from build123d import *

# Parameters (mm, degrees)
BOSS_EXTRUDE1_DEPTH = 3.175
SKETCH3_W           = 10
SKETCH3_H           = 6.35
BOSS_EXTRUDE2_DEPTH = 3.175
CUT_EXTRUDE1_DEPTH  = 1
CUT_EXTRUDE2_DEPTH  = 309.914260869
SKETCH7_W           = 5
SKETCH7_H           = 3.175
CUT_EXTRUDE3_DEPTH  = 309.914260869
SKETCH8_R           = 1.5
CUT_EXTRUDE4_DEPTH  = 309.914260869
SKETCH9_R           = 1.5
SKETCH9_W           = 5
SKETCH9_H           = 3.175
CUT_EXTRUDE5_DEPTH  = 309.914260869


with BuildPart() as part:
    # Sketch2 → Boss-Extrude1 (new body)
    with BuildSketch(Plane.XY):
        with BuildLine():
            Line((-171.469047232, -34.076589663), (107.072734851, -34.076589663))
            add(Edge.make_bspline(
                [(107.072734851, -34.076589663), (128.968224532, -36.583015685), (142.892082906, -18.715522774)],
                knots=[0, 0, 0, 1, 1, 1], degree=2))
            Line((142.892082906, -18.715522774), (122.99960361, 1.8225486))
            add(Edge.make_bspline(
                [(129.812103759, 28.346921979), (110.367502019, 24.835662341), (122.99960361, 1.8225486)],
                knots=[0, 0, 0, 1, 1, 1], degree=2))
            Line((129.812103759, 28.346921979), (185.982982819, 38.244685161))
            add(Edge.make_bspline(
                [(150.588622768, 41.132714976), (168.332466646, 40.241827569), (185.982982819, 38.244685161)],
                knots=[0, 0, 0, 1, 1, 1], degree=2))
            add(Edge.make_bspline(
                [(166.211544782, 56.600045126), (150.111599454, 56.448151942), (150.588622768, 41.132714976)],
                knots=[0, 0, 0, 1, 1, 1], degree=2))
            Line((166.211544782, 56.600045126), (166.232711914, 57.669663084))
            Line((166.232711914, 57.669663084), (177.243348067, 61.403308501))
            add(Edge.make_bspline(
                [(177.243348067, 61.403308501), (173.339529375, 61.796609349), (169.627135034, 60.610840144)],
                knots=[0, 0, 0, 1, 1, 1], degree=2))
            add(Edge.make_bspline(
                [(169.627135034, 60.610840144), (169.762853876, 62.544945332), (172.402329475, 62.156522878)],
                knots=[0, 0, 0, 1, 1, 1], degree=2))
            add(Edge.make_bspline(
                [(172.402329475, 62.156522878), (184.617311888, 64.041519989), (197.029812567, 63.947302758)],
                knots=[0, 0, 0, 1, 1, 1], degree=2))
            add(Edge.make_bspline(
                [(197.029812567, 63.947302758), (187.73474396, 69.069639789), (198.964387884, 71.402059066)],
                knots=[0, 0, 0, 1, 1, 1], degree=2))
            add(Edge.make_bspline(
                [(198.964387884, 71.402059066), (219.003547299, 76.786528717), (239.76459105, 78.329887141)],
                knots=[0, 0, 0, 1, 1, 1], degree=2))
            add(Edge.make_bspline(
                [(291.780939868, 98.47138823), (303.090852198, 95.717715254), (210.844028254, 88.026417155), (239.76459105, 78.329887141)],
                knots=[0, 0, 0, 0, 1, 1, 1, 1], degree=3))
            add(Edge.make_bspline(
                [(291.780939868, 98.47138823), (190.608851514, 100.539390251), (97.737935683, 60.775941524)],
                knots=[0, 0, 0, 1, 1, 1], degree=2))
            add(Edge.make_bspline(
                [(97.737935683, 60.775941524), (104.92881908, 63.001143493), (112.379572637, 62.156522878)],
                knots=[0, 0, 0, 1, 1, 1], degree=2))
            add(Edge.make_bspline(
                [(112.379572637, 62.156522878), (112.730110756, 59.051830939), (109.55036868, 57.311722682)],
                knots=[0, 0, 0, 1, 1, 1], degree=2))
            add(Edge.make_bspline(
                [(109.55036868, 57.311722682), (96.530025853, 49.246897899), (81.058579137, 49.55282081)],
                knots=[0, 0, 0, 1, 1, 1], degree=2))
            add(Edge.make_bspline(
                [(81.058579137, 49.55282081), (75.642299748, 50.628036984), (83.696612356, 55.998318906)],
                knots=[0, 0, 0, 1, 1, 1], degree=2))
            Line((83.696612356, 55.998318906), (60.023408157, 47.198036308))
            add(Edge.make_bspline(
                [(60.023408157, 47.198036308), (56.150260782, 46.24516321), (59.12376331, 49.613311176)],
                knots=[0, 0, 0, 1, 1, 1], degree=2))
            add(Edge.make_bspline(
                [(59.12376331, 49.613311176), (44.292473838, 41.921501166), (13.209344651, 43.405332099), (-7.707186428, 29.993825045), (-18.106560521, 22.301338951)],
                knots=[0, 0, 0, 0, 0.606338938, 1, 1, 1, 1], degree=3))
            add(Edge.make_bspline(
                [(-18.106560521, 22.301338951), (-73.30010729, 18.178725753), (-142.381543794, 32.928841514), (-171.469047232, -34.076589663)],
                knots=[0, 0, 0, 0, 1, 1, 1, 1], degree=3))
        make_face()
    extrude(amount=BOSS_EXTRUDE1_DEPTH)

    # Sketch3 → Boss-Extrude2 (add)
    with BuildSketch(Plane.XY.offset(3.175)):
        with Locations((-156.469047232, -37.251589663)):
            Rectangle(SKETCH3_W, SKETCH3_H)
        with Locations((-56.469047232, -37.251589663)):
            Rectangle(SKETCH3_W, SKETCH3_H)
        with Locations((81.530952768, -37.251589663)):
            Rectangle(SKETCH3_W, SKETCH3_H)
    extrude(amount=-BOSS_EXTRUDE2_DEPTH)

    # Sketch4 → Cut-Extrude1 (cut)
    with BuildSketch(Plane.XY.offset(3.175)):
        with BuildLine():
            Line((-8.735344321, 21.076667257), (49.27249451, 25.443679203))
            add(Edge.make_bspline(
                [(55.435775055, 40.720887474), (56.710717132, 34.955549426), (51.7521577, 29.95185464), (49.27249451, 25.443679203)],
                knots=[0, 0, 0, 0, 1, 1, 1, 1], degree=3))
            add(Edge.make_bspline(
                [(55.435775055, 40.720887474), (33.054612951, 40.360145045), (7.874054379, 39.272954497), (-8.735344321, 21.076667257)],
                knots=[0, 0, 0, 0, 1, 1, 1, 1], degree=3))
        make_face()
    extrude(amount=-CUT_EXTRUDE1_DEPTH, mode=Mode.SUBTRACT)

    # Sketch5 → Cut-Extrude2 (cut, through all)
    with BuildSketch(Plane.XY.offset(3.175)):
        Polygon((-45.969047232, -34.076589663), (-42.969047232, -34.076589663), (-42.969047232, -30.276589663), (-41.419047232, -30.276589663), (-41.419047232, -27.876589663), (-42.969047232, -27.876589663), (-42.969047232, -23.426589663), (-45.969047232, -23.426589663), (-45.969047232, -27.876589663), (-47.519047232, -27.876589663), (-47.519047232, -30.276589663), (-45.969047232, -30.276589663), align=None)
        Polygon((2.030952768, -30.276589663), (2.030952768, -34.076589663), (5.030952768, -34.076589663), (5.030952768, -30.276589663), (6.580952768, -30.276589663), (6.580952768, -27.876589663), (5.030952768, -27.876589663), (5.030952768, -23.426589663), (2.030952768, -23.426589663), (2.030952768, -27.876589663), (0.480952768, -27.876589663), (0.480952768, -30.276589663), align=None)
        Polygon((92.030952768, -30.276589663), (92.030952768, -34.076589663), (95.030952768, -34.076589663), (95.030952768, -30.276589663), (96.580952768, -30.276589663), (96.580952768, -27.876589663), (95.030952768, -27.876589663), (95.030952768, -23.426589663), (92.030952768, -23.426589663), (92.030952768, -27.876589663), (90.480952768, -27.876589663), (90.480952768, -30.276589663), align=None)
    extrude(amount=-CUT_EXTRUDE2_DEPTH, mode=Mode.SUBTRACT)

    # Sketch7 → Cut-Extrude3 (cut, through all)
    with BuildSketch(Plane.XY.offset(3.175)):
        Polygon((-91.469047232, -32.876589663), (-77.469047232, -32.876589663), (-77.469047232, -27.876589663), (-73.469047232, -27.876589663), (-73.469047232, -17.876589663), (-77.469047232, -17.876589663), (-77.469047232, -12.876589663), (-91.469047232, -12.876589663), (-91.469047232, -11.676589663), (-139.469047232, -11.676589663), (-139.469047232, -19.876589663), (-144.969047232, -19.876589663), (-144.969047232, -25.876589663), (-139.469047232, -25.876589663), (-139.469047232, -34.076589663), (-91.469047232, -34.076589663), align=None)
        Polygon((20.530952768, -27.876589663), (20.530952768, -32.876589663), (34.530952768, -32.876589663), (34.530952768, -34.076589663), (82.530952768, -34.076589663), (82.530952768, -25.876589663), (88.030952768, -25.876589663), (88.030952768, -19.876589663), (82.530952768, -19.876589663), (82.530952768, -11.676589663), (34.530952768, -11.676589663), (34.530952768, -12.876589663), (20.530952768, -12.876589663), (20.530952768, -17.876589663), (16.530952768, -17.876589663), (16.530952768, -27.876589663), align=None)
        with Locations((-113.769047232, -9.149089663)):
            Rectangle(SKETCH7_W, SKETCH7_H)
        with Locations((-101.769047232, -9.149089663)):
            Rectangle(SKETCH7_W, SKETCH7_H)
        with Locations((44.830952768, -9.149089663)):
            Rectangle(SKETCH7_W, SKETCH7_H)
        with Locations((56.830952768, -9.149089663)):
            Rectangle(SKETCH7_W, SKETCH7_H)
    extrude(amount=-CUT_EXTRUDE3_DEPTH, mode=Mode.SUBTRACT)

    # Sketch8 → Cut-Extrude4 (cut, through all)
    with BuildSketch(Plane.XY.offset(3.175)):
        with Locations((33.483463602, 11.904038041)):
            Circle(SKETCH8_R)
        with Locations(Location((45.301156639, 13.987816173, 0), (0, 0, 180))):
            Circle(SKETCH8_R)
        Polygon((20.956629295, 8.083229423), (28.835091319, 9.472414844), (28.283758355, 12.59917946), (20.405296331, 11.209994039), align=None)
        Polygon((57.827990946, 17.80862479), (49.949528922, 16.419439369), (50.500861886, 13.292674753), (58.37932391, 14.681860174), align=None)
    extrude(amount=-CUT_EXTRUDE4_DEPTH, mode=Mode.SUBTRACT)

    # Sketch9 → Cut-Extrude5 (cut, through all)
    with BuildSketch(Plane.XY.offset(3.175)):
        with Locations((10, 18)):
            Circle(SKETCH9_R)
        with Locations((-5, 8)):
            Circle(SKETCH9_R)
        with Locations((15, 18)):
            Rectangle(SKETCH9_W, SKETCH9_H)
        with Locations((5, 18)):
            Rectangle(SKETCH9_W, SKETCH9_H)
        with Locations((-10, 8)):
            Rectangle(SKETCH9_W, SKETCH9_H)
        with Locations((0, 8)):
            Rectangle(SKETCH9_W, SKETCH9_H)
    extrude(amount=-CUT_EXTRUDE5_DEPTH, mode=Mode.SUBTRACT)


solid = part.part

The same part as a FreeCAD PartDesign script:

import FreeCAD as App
import Part
import Sketcher

V = App.Vector
Q = App.Units.Quantity


def add_polygon(sketch, points):
    """Adds a closed chain of lines whose ends are joined by coincident constraints."""
    first, n = sketch.GeometryCount, len(points)
    for a, b in zip(points, points[1:] + points[:1]):
        sketch.addGeometry(Part.LineSegment(App.Vector(*a, 0), App.Vector(*b, 0)), False)
    for i in range(n):
        sketch.addConstraint(Sketcher.Constraint("Coincident", first + i, 2, first + (i + 1) % n, 1))

doc = App.newDocument("Part")
params = doc.addObject("Spreadsheet::Sheet", "Params")
for row, (alias, value) in enumerate([
    ("pad1_length", "3.175 mm"),
    ("sketch2_width", "10 mm"),
    ("sketch2_height", "6.35 mm"),
    ("pad2_length", "3.175 mm"),
    ("pocket1_length", "1 mm"),
    ("sketch4_width", "3 mm"),
    ("sketch4_height", "3.8 mm"),
    ("sketch4_height2", "2.4 mm"),
    ("sketch4_width2", "1.55 mm"),
    ("sketch4_height3", "4.45 mm"),
    ("sketch5_width", "14 mm"),
    ("sketch5_width2", "4 mm"),
    ("sketch5_width3", "48 mm"),
    ("sketch5_width4", "5 mm"),
    ("sketch5_height", "10 mm"),
    ("sketch6_diameter", "3 mm"),
    ("sketch6_length", "8 mm"),
    ("sketch7_diameter", "3 mm"),
    ("sketch7_width", "5 mm"),
], start=1):
    params.set(f"A{row}", alias)
    params.set(f"B{row}", "=" + value)
    params.setAlias(f"B{row}", alias)

body = doc.addObject("PartDesign::Body", "Body")

sketch1 = body.newObject("Sketcher::SketchObject", "Sketch")
sketch1.AttachmentSupport = (doc.getObject("XY_Plane"), [""])
sketch1.MapMode = "FlatFace"
sketch1.addGeometry([
    Part.LineSegment(V(-171.469047, -34.07659, 0), V(107.072735, -34.07659, 0)),
    Part.BSplineCurve([V(107.072735, -34.07659, 0), V(128.968225, -36.583016, 0), V(142.892083, -18.715523, 0)], [3, 3], [0, 1], False, 2, [1, 1, 1], False),
    Part.LineSegment(V(142.892083, -18.715523, 0), V(122.999604, 1.822549, 0)),
    Part.BSplineCurve([V(129.812104, 28.346922, 0), V(110.367502, 24.835662, 0), V(122.999604, 1.822549, 0)], [3, 3], [0, 1], False, 2, [1, 1, 1], False),
    Part.LineSegment(V(129.812104, 28.346922, 0), V(185.982983, 38.244685, 0)),
    Part.BSplineCurve([V(150.588623, 41.132715, 0), V(168.332467, 40.241828, 0), V(185.982983, 38.244685, 0)], [3, 3], [0, 1], False, 2, [1, 1, 1], False),
    Part.BSplineCurve([V(166.211545, 56.600045, 0), V(150.111599, 56.448152, 0), V(150.588623, 41.132715, 0)], [3, 3], [0, 1], False, 2, [1, 1, 1], False),
    Part.LineSegment(V(166.211545, 56.600045, 0), V(166.232712, 57.669663, 0)),
    Part.LineSegment(V(166.232712, 57.669663, 0), V(177.243348, 61.403309, 0)),
    Part.BSplineCurve([V(177.243348, 61.403309, 0), V(173.339529, 61.796609, 0), V(169.627135, 60.61084, 0)], [3, 3], [0, 1], False, 2, [1, 1, 1], False),
    Part.BSplineCurve([V(169.627135, 60.61084, 0), V(169.762854, 62.544945, 0), V(172.402329, 62.156523, 0)], [3, 3], [0, 1], False, 2, [1, 1, 1], False),
    Part.BSplineCurve([V(172.402329, 62.156523, 0), V(184.617312, 64.04152, 0), V(197.029813, 63.947303, 0)], [3, 3], [0, 1], False, 2, [1, 1, 1], False),
    Part.BSplineCurve([V(197.029813, 63.947303, 0), V(187.734744, 69.06964, 0), V(198.964388, 71.402059, 0)], [3, 3], [0, 1], False, 2, [1, 1, 1], False),
    Part.BSplineCurve([V(198.964388, 71.402059, 0), V(219.003547, 76.786529, 0), V(239.764591, 78.329887, 0)], [3, 3], [0, 1], False, 2, [1, 1, 1], False),
    Part.BSplineCurve([V(291.78094, 98.471388, 0), V(303.090852, 95.717715, 0), V(210.844028, 88.026417, 0), V(239.764591, 78.329887, 0)], [4, 4], [0, 1], False, 3, [1, 1, 1, 1], False),
    Part.BSplineCurve([V(291.78094, 98.471388, 0), V(190.608852, 100.53939, 0), V(97.737936, 60.775942, 0)], [3, 3], [0, 1], False, 2, [1, 1, 1], False),
    Part.BSplineCurve([V(97.737936, 60.775942, 0), V(104.928819, 63.001143, 0), V(112.379573, 62.156523, 0)], [3, 3], [0, 1], False, 2, [1, 1, 1], False),
    Part.BSplineCurve([V(112.379573, 62.156523, 0), V(112.730111, 59.051831, 0), V(109.550369, 57.311723, 0)], [3, 3], [0, 1], False, 2, [1, 1, 1], False),
    Part.BSplineCurve([V(109.550369, 57.311723, 0), V(96.530026, 49.246898, 0), V(81.058579, 49.552821, 0)], [3, 3], [0, 1], False, 2, [1, 1, 1], False),
    Part.BSplineCurve([V(81.058579, 49.552821, 0), V(75.6423, 50.628037, 0), V(83.696612, 55.998319, 0)], [3, 3], [0, 1], False, 2, [1, 1, 1], False),
    Part.LineSegment(V(83.696612, 55.998319, 0), V(60.023408, 47.198036, 0)),
    Part.BSplineCurve([V(60.023408, 47.198036, 0), V(56.150261, 46.245163, 0), V(59.123763, 49.613311, 0)], [3, 3], [0, 1], False, 2, [1, 1, 1], False),
    Part.BSplineCurve([V(59.123763, 49.613311, 0), V(44.292474, 41.921501, 0), V(13.209345, 43.405332, 0), V(-7.707186, 29.993825, 0), V(-18.106561, 22.301339, 0)], [4, 1, 4], [0, 0.606338938, 1], False, 3, [1, 1, 1, 1, 1], False),
    Part.BSplineCurve([V(-18.106561, 22.301339, 0), V(-73.300107, 18.178726, 0), V(-142.381544, 32.928842, 0), V(-171.469047, -34.07659, 0)], [4, 4], [0, 1], False, 3, [1, 1, 1, 1], False),
], False)
sketch1.addConstraint([
    Sketcher.Constraint("Block", 1),
    Sketcher.Constraint("Block", 3),
    Sketcher.Constraint("Block", 5),
    Sketcher.Constraint("Block", 6),
    Sketcher.Constraint("Block", 9),
    Sketcher.Constraint("Block", 10),
    Sketcher.Constraint("Block", 11),
    Sketcher.Constraint("Block", 12),
    Sketcher.Constraint("Block", 13),
    Sketcher.Constraint("Block", 14),
    Sketcher.Constraint("Block", 15),
    Sketcher.Constraint("Block", 16),
    Sketcher.Constraint("Block", 17),
    Sketcher.Constraint("Block", 18),
    Sketcher.Constraint("Block", 19),
    Sketcher.Constraint("Block", 21),
    Sketcher.Constraint("Block", 22),
    Sketcher.Constraint("Block", 23),
    Sketcher.Constraint("Coincident", 0, 2, 1, 1),
    Sketcher.Constraint("Coincident", 1, 2, 2, 1),
    Sketcher.Constraint("Coincident", 2, 2, 3, 2),
    Sketcher.Constraint("Coincident", 3, 1, 4, 1),
    Sketcher.Constraint("Coincident", 4, 2, 5, 2),
    Sketcher.Constraint("Coincident", 6, 1, 7, 1),
    Sketcher.Constraint("Coincident", 7, 2, 8, 1),
    Sketcher.Constraint("Coincident", 8, 2, 9, 1),
    Sketcher.Constraint("Coincident", 19, 2, 20, 1),
    Sketcher.Constraint("Coincident", 20, 2, 21, 1),
    Sketcher.Constraint("Coincident", 23, 2, 0, 1),
    Sketcher.Constraint("DistanceX", -1, 1, 7, 2, Q("166.232712 mm")),
    Sketcher.Constraint("Distance", 7, Q("1.069827 mm")),
])
pad1 = body.newObject("PartDesign::Pad", "Pad")
pad1.Profile = sketch1
pad1.setExpression("Length", "Params.pad1_length")

sketch2 = body.newObject("Sketcher::SketchObject", "Sketch001")
sketch2.AttachmentSupport = (doc.getObject("XY_Plane"), [""])
sketch2.MapMode = "FlatFace"
sketch2.AttachmentOffset = App.Placement(V(0, 0, 3.175), App.Rotation())
add_polygon(sketch2, [(-161, -34), (-161, -40), (-151, -40), (-151, -34)])
add_polygon(sketch2, [(-61, -34), (-61, -40), (-51, -40), (-51, -34)])
add_polygon(sketch2, [(77, -34), (77, -40), (87, -40), (87, -34)])
sketch2.addConstraint([
    Sketcher.Constraint("Vertical", 0),
    Sketcher.Constraint("Horizontal", 1),
    Sketcher.Constraint("Vertical", 2),
    Sketcher.Constraint("Horizontal", 3),
    Sketcher.Constraint("Vertical", 4),
    Sketcher.Constraint("Horizontal", 5),
    Sketcher.Constraint("Vertical", 6),
    Sketcher.Constraint("Horizontal", 7),
    Sketcher.Constraint("Vertical", 8),
    Sketcher.Constraint("Horizontal", 9),
    Sketcher.Constraint("Vertical", 10),
    Sketcher.Constraint("Horizontal", 11),
    Sketcher.Constraint("Horizontal", 1, 2, 4, 2),
    Sketcher.Constraint("Horizontal", 3, 2, 6, 2),
    Sketcher.Constraint("Horizontal", 5, 2, 8, 2),
    Sketcher.Constraint("Horizontal", 7, 2, 10, 2),
    Sketcher.Constraint("Equal", 3, 5),
    Sketcher.Constraint("Equal", 7, 9),
    Sketcher.Constraint("DistanceX", 1, 1, 1, 2, Q("10 mm")),
    Sketcher.Constraint("DistanceX", 1, 2, 4, 2, Q("90 mm")),
    Sketcher.Constraint("DistanceX", 5, 2, 8, 2, Q("128 mm")),
    Sketcher.Constraint("DistanceY", 0, 2, 0, 1, Q("6.35 mm")),
    Sketcher.Constraint("DistanceY", 0, 2, -1, 1, Q("40.42659 mm")),
    Sketcher.Constraint("DistanceX", 0, 2, -1, 1, Q("161.469047 mm")),
])
sketch2.setExpression("Constraints[30]", "Params.sketch2_width")
sketch2.setExpression("Constraints[33]", "Params.sketch2_height")
pad2 = body.newObject("PartDesign::Pad", "Pad001")
pad2.Profile = sketch2
pad2.setExpression("Length", "Params.pad2_length")
pad2.Reversed = True

sketch3 = body.newObject("Sketcher::SketchObject", "Sketch002")
sketch3.AttachmentSupport = (doc.getObject("XY_Plane"), [""])
sketch3.MapMode = "FlatFace"
sketch3.AttachmentOffset = App.Placement(V(0, 0, 3.175), App.Rotation())
sketch3.addGeometry([
    Part.LineSegment(V(-8.735344, 21.076667, 0), V(49.272495, 25.443679, 0)),
    Part.BSplineCurve([V(55.435775, 40.720887, 0), V(56.710717, 34.955549, 0), V(51.752158, 29.951855, 0), V(49.272495, 25.443679, 0)], [4, 4], [0, 1], False, 3, [1, 1, 1, 1], False),
    Part.BSplineCurve([V(55.435775, 40.720887, 0), V(33.054613, 40.360145, 0), V(7.874054, 39.272954, 0), V(-8.735344, 21.076667, 0)], [4, 4], [0, 1], False, 3, [1, 1, 1, 1], False),
], False)
sketch3.addConstraint([
    Sketcher.Constraint("Block", 1),
    Sketcher.Constraint("Block", 2),
    Sketcher.Constraint("Coincident", 0, 2, 1, 2),
    Sketcher.Constraint("Coincident", 2, 2, 0, 1),
])
pocket1 = body.newObject("PartDesign::Pocket", "Pocket")
pocket1.Profile = sketch3
pocket1.setExpression("Length", "Params.pocket1_length")

sketch4 = body.newObject("Sketcher::SketchObject", "Sketch003")
sketch4.AttachmentSupport = (doc.getObject("XY_Plane"), [""])
sketch4.MapMode = "FlatFace"
sketch4.AttachmentOffset = App.Placement(V(0, 0, 3.175), App.Rotation())
add_polygon(sketch4, [(-46, -34.1), (-43, -34.1), (-43, -30.3), (-41.4, -30.3), (-41.4, -27.9), (-43, -27.9), (-43, -23.4), (-46, -23.4), (-46, -27.9), (-47.5, -27.9), (-47.5, -30.3), (-46, -30.3)])
add_polygon(sketch4, [(2, -30.3), (2, -34.1), (5, -34.1), (5, -30.3), (6.6, -30.3), (6.6, -27.9), (5, -27.9), (5, -23.4), (2, -23.4), (2, -27.9), (0.5, -27.9), (0.5, -30.3)])
add_polygon(sketch4, [(92, -30.3), (92, -34.1), (95, -34.1), (95, -30.3), (96.6, -30.3), (96.6, -27.9), (95, -27.9), (95, -23.4), (92, -23.4), (92, -27.9), (90.5, -27.9), (90.5, -30.3)])
sketch4.addConstraint([
    Sketcher.Constraint("Horizontal", 0),
    Sketcher.Constraint("Vertical", 1),
    Sketcher.Constraint("Horizontal", 2),
    Sketcher.Constraint("Vertical", 3),
    Sketcher.Constraint("Horizontal", 4),
    Sketcher.Constraint("Vertical", 5),
    Sketcher.Constraint("Horizontal", 6),
    Sketcher.Constraint("Vertical", 7),
    Sketcher.Constraint("Horizontal", 8),
    Sketcher.Constraint("Vertical", 9),
    Sketcher.Constraint("Horizontal", 10),
    Sketcher.Constraint("Vertical", 11),
    Sketcher.Constraint("Vertical", 12),
    Sketcher.Constraint("Horizontal", 13),
    Sketcher.Constraint("Vertical", 14),
    Sketcher.Constraint("Horizontal", 15),
    Sketcher.Constraint("Vertical", 16),
    Sketcher.Constraint("Horizontal", 17),
    Sketcher.Constraint("Vertical", 18),
    Sketcher.Constraint("Horizontal", 19),
    Sketcher.Constraint("Vertical", 20),
    Sketcher.Constraint("Horizontal", 21),
    Sketcher.Constraint("Vertical", 22),
    Sketcher.Constraint("Horizontal", 23),
    Sketcher.Constraint("Vertical", 24),
    Sketcher.Constraint("Horizontal", 25),
    Sketcher.Constraint("Vertical", 26),
    Sketcher.Constraint("Horizontal", 27),
    Sketcher.Constraint("Vertical", 28),
    Sketcher.Constraint("Horizontal", 29),
    Sketcher.Constraint("Vertical", 30),
    Sketcher.Constraint("Horizontal", 31),
    Sketcher.Constraint("Vertical", 32),
    Sketcher.Constraint("Horizontal", 33),
    Sketcher.Constraint("Vertical", 34),
    Sketcher.Constraint("Horizontal", 35),
    Sketcher.Constraint("Horizontal", 4, 2, 7, 2),
    Sketcher.Constraint("Horizontal", 2, 2, 9, 2),
    Sketcher.Constraint("Horizontal", 11, 2, 12, 2),
    Sketcher.Constraint("Horizontal", 10, 2, 14, 2),
    Sketcher.Constraint("Horizontal", 8, 2, 16, 2),
    Sketcher.Constraint("Horizontal", 6, 2, 18, 2),
    Sketcher.Constraint("Horizontal", 17, 2, 20, 2),
    Sketcher.Constraint("Horizontal", 15, 2, 22, 2),
    Sketcher.Constraint("Horizontal", 13, 2, 24, 2),
    Sketcher.Constraint("Horizontal", 23, 2, 26, 2),
    Sketcher.Constraint("Horizontal", 21, 2, 28, 2),
    Sketcher.Constraint("Horizontal", 19, 2, 30, 2),
    Sketcher.Constraint("Horizontal", 29, 2, 32, 2),
    Sketcher.Constraint("Horizontal", 27, 2, 34, 2),
    Sketcher.Constraint("Vertical", 1, 2, 4, 2),
    Sketcher.Constraint("Vertical", 7, 2, 10, 2),
    Sketcher.Constraint("Vertical", 14, 2, 17, 2),
    Sketcher.Constraint("Vertical", 12, 2, 19, 2),
    Sketcher.Constraint("Vertical", 26, 2, 29, 2),
    Sketcher.Constraint("Vertical", 24, 2, 31, 2),
    Sketcher.Constraint("Equal", 4, 8),
    Sketcher.Constraint("Equal", 6, 13),
    Sketcher.Constraint("Equal", 10, 15),
    Sketcher.Constraint("Equal", 17, 21),
    Sketcher.Constraint("Equal", 19, 25),
    Sketcher.Constraint("Equal", 23, 27),
    Sketcher.Constraint("Equal", 29, 33),
    Sketcher.Constraint("DistanceX", 0, 1, 0, 2, Q("3 mm")),
    Sketcher.Constraint("DistanceY", 1, 1, 1, 2, Q("3.8 mm")),
    Sketcher.Constraint("DistanceY", 3, 1, 3, 2, Q("2.4 mm")),
    Sketcher.Constraint("DistanceX", 0, 2, 12, 2, Q("45 mm")),
    Sketcher.Constraint("DistanceX", 13, 2, 24, 2, Q("87 mm")),
    Sketcher.Constraint("DistanceX", 2, 1, 2, 2, Q("1.55 mm")),
    Sketcher.Constraint("DistanceY", 5, 1, 5, 2, Q("4.45 mm")),
    Sketcher.Constraint("DistanceY", 0, 2, -1, 1, Q("34.07659 mm")),
    Sketcher.Constraint("DistanceX", 0, 2, -1, 1, Q("42.969047 mm")),
])
sketch4.setExpression("Constraints[99]", "Params.sketch4_width")
sketch4.setExpression("Constraints[100]", "Params.sketch4_height")
sketch4.setExpression("Constraints[101]", "Params.sketch4_height2")
sketch4.setExpression("Constraints[104]", "Params.sketch4_width2")
sketch4.setExpression("Constraints[105]", "Params.sketch4_height3")
pocket2 = body.newObject("PartDesign::Pocket", "Pocket001")
pocket2.Profile = sketch4
pocket2.Type = "ThroughAll"

sketch5 = body.newObject("Sketcher::SketchObject", "Sketch004")
sketch5.AttachmentSupport = (doc.getObject("XY_Plane"), [""])
sketch5.MapMode = "FlatFace"
sketch5.AttachmentOffset = App.Placement(V(0, 0, 3.175), App.Rotation())
add_polygon(sketch5, [(-91.5, -32.9), (-77.5, -32.9), (-77.5, -27.9), (-73.5, -27.9), (-73.5, -17.9), (-77.5, -17.9), (-77.5, -12.9), (-91.5, -12.9), (-91.5, -11.7), (-139.5, -11.7), (-139.5, -19.9), (-145, -19.9), (-145, -25.9), (-139.5, -25.9), (-139.5, -34.1), (-91.5, -34.1)])
add_polygon(sketch5, [(20.5, -27.9), (20.5, -32.9), (34.5, -32.9), (34.5, -34.1), (82.5, -34.1), (82.5, -25.9), (88, -25.9), (88, -19.9), (82.5, -19.9), (82.5, -11.7), (34.5, -11.7), (34.5, -12.9), (20.5, -12.9), (20.5, -17.9), (16.5, -17.9), (16.5, -27.9)])
add_polygon(sketch5, [(-116.3, -7.6), (-116.3, -10.7), (-111.3, -10.7), (-111.3, -7.6)])
add_polygon(sketch5, [(-104.3, -7.6), (-104.3, -10.7), (-99.3, -10.7), (-99.3, -7.6)])
add_polygon(sketch5, [(42.3, -7.6), (42.3, -10.7), (47.3, -10.7), (47.3, -7.6)])
add_polygon(sketch5, [(54.3, -7.6), (54.3, -10.7), (59.3, -10.7), (59.3, -7.6)])
sketch5.addConstraint([
    Sketcher.Constraint("Horizontal", 0),
    Sketcher.Constraint("Vertical", 1),
    Sketcher.Constraint("Horizontal", 2),
    Sketcher.Constraint("Vertical", 3),
    Sketcher.Constraint("Horizontal", 4),
    Sketcher.Constraint("Vertical", 5),
    Sketcher.Constraint("Horizontal", 6),
    Sketcher.Constraint("Vertical", 7),
    Sketcher.Constraint("Horizontal", 8),
    Sketcher.Constraint("Vertical", 9),
    Sketcher.Constraint("Horizontal", 10),
    Sketcher.Constraint("Vertical", 11),
    Sketcher.Constraint("Horizontal", 12),
    Sketcher.Constraint("Vertical", 13),
    Sketcher.Constraint("Horizontal", 14),
    Sketcher.Constraint("Vertical", 15),
    Sketcher.Constraint("Vertical", 16),
    Sketcher.Constraint("Horizontal", 17),
    Sketcher.Constraint("Vertical", 18),
    Sketcher.Constraint("Horizontal", 19),
    Sketcher.Constraint("Vertical", 20),
    Sketcher.Constraint("Horizontal", 21),
    Sketcher.Constraint("Vertical", 22),
    Sketcher.Constraint("Horizontal", 23),
    Sketcher.Constraint("Vertical", 24),
    Sketcher.Constraint("Horizontal", 25),
    Sketcher.Constraint("Vertical", 26),
    Sketcher.Constraint("Horizontal", 27),
    Sketcher.Constraint("Vertical", 28),
    Sketcher.Constraint("Horizontal", 29),
    Sketcher.Constraint("Vertical", 30),
    Sketcher.Constraint("Horizontal", 31),
    Sketcher.Constraint("Vertical", 32),
    Sketcher.Constraint("Horizontal", 33),
    Sketcher.Constraint("Vertical", 34),
    Sketcher.Constraint("Horizontal", 35),
    Sketcher.Constraint("Vertical", 36),
    Sketcher.Constraint("Horizontal", 37),
    Sketcher.Constraint("Vertical", 38),
    Sketcher.Constraint("Horizontal", 39),
    Sketcher.Constraint("Vertical", 40),
    Sketcher.Constraint("Horizontal", 41),
    Sketcher.Constraint("Vertical", 42),
    Sketcher.Constraint("Horizontal", 43),
    Sketcher.Constraint("Vertical", 44),
    Sketcher.Constraint("Horizontal", 45),
    Sketcher.Constraint("Vertical", 46),
    Sketcher.Constraint("Horizontal", 47),
    Sketcher.Constraint("Horizontal", 15, 2, 16, 2),
    Sketcher.Constraint("Horizontal", 14, 2, 18, 2),
    Sketcher.Constraint("Horizontal", 12, 2, 20, 2),
    Sketcher.Constraint("Horizontal", 10, 2, 22, 2),
    Sketcher.Constraint("Horizontal", 8, 2, 24, 2),
    Sketcher.Constraint("Horizontal", 6, 2, 26, 2),
    Sketcher.Constraint("Horizontal", 4, 2, 28, 2),
    Sketcher.Constraint("Horizontal", 2, 2, 30, 2),
    Sketcher.Constraint("Horizontal", 33, 2, 36, 2),
    Sketcher.Constraint("Horizontal", 35, 2, 38, 2),
    Sketcher.Constraint("Horizontal", 37, 2, 40, 2),
    Sketcher.Constraint("Horizontal", 39, 2, 42, 2),
    Sketcher.Constraint("Horizontal", 41, 2, 44, 2),
    Sketcher.Constraint("Horizontal", 43, 2, 46, 2),
    Sketcher.Constraint("Vertical", 1, 2, 4, 2),
    Sketcher.Constraint("Vertical", 9, 2, 12, 2),
    Sketcher.Constraint("Vertical", 7, 2, 14, 2),
    Sketcher.Constraint("Vertical", 20, 2, 23, 2),
    Sketcher.Constraint("Vertical", 18, 2, 25, 2),
    Sketcher.Constraint("Vertical", 16, 2, 27, 2),
    Sketcher.Constraint("Equal", 6, 17),
    Sketcher.Constraint("Equal", 14, 19),
    Sketcher.Constraint("Equal", 12, 21),
    Sketcher.Constraint("Equal", 4, 29),
    Sketcher.Constraint("Equal", 35, 37),
    Sketcher.Constraint("Equal", 39, 41),
    Sketcher.Constraint("Equal", 43, 45),
    Sketcher.Constraint("Equal", 47, 1),
    Sketcher.Constraint("Equal", 1, 5),
    Sketcher.Constraint("Equal", 9, 13),
    Sketcher.Constraint("Equal", 7, 15),
    Sketcher.Constraint("DistanceX", 0, 1, 0, 2, Q("14 mm")),
    Sketcher.Constraint("DistanceX", 2, 1, 2, 2, Q("4 mm")),
    Sketcher.Constraint("DistanceX", 8, 2, 8, 1, Q("48 mm")),
    Sketcher.Constraint("DistanceX", 33, 1, 33, 2, Q("5 mm")),
    Sketcher.Constraint("DistanceY", 3, 1, 3, 2, Q("10 mm")),
    Sketcher.Constraint("DistanceY", 11, 2, 11, 1, Q("6 mm")),
    Sketcher.Constraint("DistanceX", 10, 2, 10, 1, Q("5.5 mm")),
    Sketcher.Constraint("DistanceY", 7, 1, 7, 2, Q("1.2 mm")),
    Sketcher.Constraint("DistanceX", 2, 2, 16, 2, Q("94 mm")),
    Sketcher.Constraint("DistanceX", 33, 2, 36, 2, Q("7 mm")),
    Sketcher.Constraint("DistanceX", 41, 2, 44, 2, Q("7 mm")),
    Sketcher.Constraint("DistanceX", 8, 2, 32, 2, Q("23.2 mm")),
    Sketcher.Constraint("DistanceX", 25, 2, 40, 2, Q("7.8 mm")),
    Sketcher.Constraint("DistanceY", 32, 2, 32, 1, Q("3.175 mm")),
    Sketcher.Constraint("DistanceY", 8, 2, 32, 2, Q("0.94 mm")),
    Sketcher.Constraint("DistanceY", 0, 2, -1, 1, Q("32.87659 mm")),
    Sketcher.Constraint("DistanceX", 0, 2, -1, 1, Q("77.469047 mm")),
])
sketch5.setExpression("Constraints[127]", "Params.sketch5_width")
sketch5.setExpression("Constraints[128]", "Params.sketch5_width2")
sketch5.setExpression("Constraints[129]", "Params.sketch5_width3")
sketch5.setExpression("Constraints[130]", "Params.sketch5_width4")
sketch5.setExpression("Constraints[131]", "Params.sketch5_height")
pocket3 = body.newObject("PartDesign::Pocket", "Pocket002")
pocket3.Profile = sketch5
pocket3.Type = "ThroughAll"

sketch6 = body.newObject("Sketcher::SketchObject", "Sketch005")
sketch6.AttachmentSupport = (doc.getObject("XY_Plane"), [""])
sketch6.MapMode = "FlatFace"
sketch6.AttachmentOffset = App.Placement(V(0, 0, 3.175), App.Rotation())
sketch6.addGeometry(Part.Circle(V(33.5, 11.9, 0), V(0, 0, 1), 1.5), False)
sketch6.addGeometry(Part.Circle(V(45.3, 14, 0), V(0, 0, 1), 1.5), False)
add_polygon(sketch6, [(21, 8.1), (28.8, 9.5), (28.3, 12.6), (20.4, 11.2)])
add_polygon(sketch6, [(57.8, 17.8), (49.9, 16.4), (50.5, 13.3), (58.4, 14.7)])
sketch6.addConstraint([
    Sketcher.Constraint("Equal", 0, 1),
    Sketcher.Constraint("Perpendicular", 2, 3),
    Sketcher.Constraint("Perpendicular", 3, 4),
    Sketcher.Constraint("Perpendicular", 4, 5),
    Sketcher.Constraint("Perpendicular", 5, 6),
    Sketcher.Constraint("Perpendicular", 6, 7),
    Sketcher.Constraint("Perpendicular", 7, 8),
    Sketcher.Constraint("Perpendicular", 8, 9),
    Sketcher.Constraint("Equal", 4, 6),
    Sketcher.Constraint("Equal", 5, 7),
    Sketcher.Constraint("Diameter", 0, Q("3 mm")),
    Sketcher.Constraint("Angle", 2, Q("10 deg")),
    Sketcher.Constraint("Distance", 2, Q("8 mm")),
    Sketcher.Constraint("Distance", 3, Q("3.175 mm")),
    Sketcher.Constraint("DistanceY", 2, 2, 1, 3, Q("4.515401 mm")),
    Sketcher.Constraint("DistanceX", 3, 2, 1, 3, Q("17.017398 mm")),
    Sketcher.Constraint("DistanceY", 0, 3, 6, 2, Q("4.515401 mm")),
    Sketcher.Constraint("DistanceX", 0, 3, 7, 2, Q("17.017398 mm")),
    Sketcher.Constraint("DistanceY", -1, 1, 0, 3, Q("11.904038 mm")),
    Sketcher.Constraint("DistanceX", -1, 1, 2, 2, Q("28.835091 mm")),
    Sketcher.Constraint("DistanceY", -1, 1, 3, 2, Q("12.599179 mm")),
    Sketcher.Constraint("DistanceX", -1, 1, 6, 2, Q("49.949529 mm")),
])
sketch6.setExpression("Constraints[18]", "Params.sketch6_diameter")
sketch6.setExpression("Constraints[20]", "Params.sketch6_length")
pocket4 = body.newObject("PartDesign::Pocket", "Pocket003")
pocket4.Profile = sketch6
pocket4.Type = "ThroughAll"

sketch7 = body.newObject("Sketcher::SketchObject", "Sketch006")
sketch7.AttachmentSupport = (doc.getObject("XY_Plane"), [""])
sketch7.MapMode = "FlatFace"
sketch7.AttachmentOffset = App.Placement(V(0, 0, 3.175), App.Rotation())
sketch7.addGeometry(Part.Circle(V(10, 18, 0), V(0, 0, 1), 1.5), False)
sketch7.addGeometry(Part.Circle(V(-5, 8, 0), V(0, 0, 1), 1.5), False)
add_polygon(sketch7, [(12.5, 19.6), (12.5, 16.4), (17.5, 16.4), (17.5, 19.6)])
add_polygon(sketch7, [(2.5, 19.6), (2.5, 16.4), (7.5, 16.4), (7.5, 19.6)])
add_polygon(sketch7, [(-12.5, 9.6), (-12.5, 6.4), (-7.5, 6.4), (-7.5, 9.6)])
add_polygon(sketch7, [(-2.5, 9.6), (-2.5, 6.4), (2.5, 6.4), (2.5, 9.6)])
sketch7.addConstraint([
    Sketcher.Constraint("Vertical", 2),
    Sketcher.Constraint("Horizontal", 3),
    Sketcher.Constraint("Vertical", 4),
    Sketcher.Constraint("Horizontal", 5),
    Sketcher.Constraint("Vertical", 6),
    Sketcher.Constraint("Horizontal", 7),
    Sketcher.Constraint("Vertical", 8),
    Sketcher.Constraint("Horizontal", 9),
    Sketcher.Constraint("Vertical", 10),
    Sketcher.Constraint("Horizontal", 11),
    Sketcher.Constraint("Vertical", 12),
    Sketcher.Constraint("Horizontal", 13),
    Sketcher.Constraint("Vertical", 14),
    Sketcher.Constraint("Horizontal", 15),
    Sketcher.Constraint("Vertical", 16),
    Sketcher.Constraint("Horizontal", 17),
    Sketcher.Constraint("Equal", 0, 1),
    Sketcher.Constraint("Horizontal", 3, 2, 6, 2),
    Sketcher.Constraint("Horizontal", 5, 2, 8, 2),
    Sketcher.Constraint("Horizontal", 11, 2, 14, 2),
    Sketcher.Constraint("Horizontal", 13, 2, 16, 2),
    Sketcher.Constraint("Vertical", 9, 2, 15, 2),
    Sketcher.Constraint("Equal", 5, 7),
    Sketcher.Constraint("Equal", 9, 11),
    Sketcher.Constraint("Equal", 13, 15),
    Sketcher.Constraint("Equal", 8, 10),
    Sketcher.Constraint("Diameter", 0, Q("3 mm")),
    Sketcher.Constraint("DistanceX", 3, 1, 3, 2, Q("5 mm")),
    Sketcher.Constraint("DistanceX", -1, 1, 0, 3, Q("10 mm")),
    Sketcher.Constraint("DistanceY", -1, 1, 0, 3, Q("18 mm")),
    Sketcher.Constraint("DistanceX", 1, 3, -1, 1, Q("5 mm")),
    Sketcher.Constraint("DistanceY", -1, 1, 1, 3, Q("8 mm")),
    Sketcher.Constraint("DistanceX", 6, 2, 2, 2, Q("10 mm")),
    Sketcher.Constraint("DistanceX", 10, 2, 6, 2, Q("15 mm")),
    Sketcher.Constraint("DistanceY", 10, 2, 6, 2, Q("10 mm")),
    Sketcher.Constraint("DistanceX", -1, 1, 2, 2, Q("12.5 mm")),
    Sketcher.Constraint("DistanceY", 2, 2, 2, 1, Q("3.175 mm")),
    Sketcher.Constraint("DistanceY", -1, 1, 2, 2, Q("16.4125 mm")),
])
sketch7.setExpression("Constraints[42]", "Params.sketch7_diameter")
sketch7.setExpression("Constraints[43]", "Params.sketch7_width")
pocket5 = body.newObject("PartDesign::Pocket", "Pocket004")
pocket5.Profile = sketch7
pocket5.Type = "ThroughAll"

doc.recompute()
